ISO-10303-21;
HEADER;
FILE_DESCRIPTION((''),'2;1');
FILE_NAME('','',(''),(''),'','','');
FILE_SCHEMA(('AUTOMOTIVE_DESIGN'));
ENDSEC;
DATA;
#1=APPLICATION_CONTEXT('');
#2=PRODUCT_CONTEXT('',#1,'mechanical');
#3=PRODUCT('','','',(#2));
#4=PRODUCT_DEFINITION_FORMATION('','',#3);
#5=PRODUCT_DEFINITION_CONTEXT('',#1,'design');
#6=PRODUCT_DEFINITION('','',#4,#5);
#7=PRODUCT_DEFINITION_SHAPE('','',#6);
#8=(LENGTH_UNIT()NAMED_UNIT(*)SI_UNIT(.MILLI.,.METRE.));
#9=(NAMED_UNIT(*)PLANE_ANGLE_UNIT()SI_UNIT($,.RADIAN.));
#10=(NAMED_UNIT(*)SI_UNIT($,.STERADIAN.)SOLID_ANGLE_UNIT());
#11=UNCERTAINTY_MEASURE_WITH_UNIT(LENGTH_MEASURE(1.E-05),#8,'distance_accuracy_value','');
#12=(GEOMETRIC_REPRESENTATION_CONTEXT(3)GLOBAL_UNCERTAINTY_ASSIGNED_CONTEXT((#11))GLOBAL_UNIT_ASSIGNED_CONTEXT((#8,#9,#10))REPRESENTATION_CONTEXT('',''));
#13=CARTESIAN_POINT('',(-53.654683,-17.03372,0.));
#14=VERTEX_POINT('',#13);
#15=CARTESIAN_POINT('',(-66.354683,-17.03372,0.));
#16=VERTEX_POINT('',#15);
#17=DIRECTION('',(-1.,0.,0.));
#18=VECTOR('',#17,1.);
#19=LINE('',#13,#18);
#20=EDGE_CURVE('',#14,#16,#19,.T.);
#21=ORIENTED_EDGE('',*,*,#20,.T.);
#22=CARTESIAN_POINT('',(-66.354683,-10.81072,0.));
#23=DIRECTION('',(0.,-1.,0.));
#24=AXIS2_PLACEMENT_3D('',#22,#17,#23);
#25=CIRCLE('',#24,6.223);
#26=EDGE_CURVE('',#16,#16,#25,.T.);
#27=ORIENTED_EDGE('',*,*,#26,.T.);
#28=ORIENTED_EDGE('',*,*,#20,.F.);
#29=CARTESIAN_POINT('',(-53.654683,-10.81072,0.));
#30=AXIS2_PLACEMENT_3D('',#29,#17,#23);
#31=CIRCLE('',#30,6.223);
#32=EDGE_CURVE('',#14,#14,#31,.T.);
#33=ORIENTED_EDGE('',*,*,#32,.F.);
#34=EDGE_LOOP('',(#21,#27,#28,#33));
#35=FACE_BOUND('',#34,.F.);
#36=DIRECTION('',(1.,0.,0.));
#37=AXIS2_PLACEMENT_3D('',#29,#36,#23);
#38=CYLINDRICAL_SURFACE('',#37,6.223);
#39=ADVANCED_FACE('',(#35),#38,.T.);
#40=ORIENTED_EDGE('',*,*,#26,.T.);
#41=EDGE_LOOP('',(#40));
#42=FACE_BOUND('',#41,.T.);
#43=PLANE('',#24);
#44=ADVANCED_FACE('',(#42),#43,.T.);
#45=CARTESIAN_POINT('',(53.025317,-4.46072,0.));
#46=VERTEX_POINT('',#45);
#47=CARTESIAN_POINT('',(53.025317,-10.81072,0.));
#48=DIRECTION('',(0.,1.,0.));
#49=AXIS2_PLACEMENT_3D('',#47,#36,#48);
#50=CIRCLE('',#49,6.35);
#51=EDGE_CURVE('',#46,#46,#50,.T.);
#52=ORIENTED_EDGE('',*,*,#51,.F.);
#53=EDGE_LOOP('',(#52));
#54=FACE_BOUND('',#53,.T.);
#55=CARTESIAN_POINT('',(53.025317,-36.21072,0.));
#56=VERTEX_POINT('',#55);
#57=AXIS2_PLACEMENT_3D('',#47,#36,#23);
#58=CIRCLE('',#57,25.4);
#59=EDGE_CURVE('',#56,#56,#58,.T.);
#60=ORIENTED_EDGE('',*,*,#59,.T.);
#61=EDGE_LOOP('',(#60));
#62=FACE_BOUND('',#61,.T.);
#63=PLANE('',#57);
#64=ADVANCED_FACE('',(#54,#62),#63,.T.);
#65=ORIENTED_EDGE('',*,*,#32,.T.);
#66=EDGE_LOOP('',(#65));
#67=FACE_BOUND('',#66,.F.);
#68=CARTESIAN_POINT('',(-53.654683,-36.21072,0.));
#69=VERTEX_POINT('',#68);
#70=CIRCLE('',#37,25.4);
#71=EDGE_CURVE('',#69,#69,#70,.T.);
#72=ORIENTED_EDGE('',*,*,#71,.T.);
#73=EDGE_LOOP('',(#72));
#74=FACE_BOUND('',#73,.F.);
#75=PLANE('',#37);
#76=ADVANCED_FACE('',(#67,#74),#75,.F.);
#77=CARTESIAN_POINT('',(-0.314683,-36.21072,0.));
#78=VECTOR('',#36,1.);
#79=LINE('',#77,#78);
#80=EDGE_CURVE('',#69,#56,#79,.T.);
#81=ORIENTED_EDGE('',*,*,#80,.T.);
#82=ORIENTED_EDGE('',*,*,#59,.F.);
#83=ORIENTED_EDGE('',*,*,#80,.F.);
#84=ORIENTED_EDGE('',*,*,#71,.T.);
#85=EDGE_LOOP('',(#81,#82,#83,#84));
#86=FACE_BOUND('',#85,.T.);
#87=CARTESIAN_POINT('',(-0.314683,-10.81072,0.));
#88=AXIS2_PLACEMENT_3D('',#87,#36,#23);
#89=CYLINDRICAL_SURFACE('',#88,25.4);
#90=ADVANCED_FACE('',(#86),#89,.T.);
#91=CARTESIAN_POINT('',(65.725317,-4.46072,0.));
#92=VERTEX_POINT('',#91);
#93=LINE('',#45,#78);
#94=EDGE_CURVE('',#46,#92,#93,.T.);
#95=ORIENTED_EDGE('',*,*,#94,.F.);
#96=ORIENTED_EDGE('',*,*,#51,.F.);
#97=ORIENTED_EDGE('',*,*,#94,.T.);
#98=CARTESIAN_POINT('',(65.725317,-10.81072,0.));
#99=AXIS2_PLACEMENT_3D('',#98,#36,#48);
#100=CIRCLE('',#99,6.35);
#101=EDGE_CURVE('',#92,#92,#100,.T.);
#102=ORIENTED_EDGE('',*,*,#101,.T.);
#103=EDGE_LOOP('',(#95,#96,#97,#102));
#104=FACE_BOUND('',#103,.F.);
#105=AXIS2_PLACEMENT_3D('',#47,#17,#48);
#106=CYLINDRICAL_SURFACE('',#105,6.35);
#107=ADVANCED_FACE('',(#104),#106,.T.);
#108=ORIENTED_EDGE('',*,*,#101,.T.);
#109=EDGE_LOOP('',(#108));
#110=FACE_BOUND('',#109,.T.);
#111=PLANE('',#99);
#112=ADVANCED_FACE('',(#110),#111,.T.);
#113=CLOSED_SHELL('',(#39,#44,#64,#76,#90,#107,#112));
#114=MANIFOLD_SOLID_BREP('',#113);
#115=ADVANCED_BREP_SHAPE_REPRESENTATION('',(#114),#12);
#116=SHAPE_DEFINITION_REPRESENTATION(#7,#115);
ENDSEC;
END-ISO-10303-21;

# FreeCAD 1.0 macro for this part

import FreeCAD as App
import Part
import Sketcher
Q = App.Units.Quantity


def add_polygon(sketch, points):
    """Adds a closed chain of lines whose ends are joined by coincident constraints."""
    first, n = sketch.GeometryCount, len(points)
    for a, b in zip(points, points[1:] + points[:1]):
        sketch.addGeometry(Part.LineSegment(App.Vector(*a, 0), App.Vector(*b, 0)), False)
    for i in range(n):
        sketch.addConstraint(Sketcher.Constraint("Coincident", first + i, 2, first + (i + 1) % n, 1))

doc = App.newDocument("Part")
body = doc.addObject("PartDesign::Body", "Body")

sketch1 = doc.addObject("Sketcher::SketchObject", "Sketch")
body.addObject(sketch1)
sketch1.AttachmentSupport = (doc.XY_Plane, [""])
sketch1.MapMode = "FlatFace"
add_polygon(sketch1, [(-53.654683, -10.81072), (-53.654683, -36.21072), (53.025317, -36.21072), (53.025317, -10.81072)])
sketch1.addGeometry(Part.LineSegment(App.Vector(-53.654683, -10.81072, 0), App.Vector(53.025317, -10.81072, 0)), True)
sketch1.addConstraint([
    Sketcher.Constraint("Vertical", 0),
    Sketcher.Constraint("Horizontal", 1),
    Sketcher.Constraint("Vertical", 2),
    Sketcher.Constraint("Horizontal", 3),
    Sketcher.Constraint("Horizontal", 4),
    Sketcher.Constraint("Coincident", 4, 1, 3, 2),
    Sketcher.Constraint("Vertical", 1, 2, 4, 2),
    Sketcher.Constraint("DistanceY", 0, 2, 0, 1, Q("1 in")),
    Sketcher.Constraint("DistanceX", 1, 1, 1, 2, Q("4.2 in")),
    Sketcher.Constraint("DistanceY", 0, 2, -1, 1, Q("36.21072 mm")),
    Sketcher.Constraint("DistanceX", 0, 2, -1, 1, Q("53.654683 mm")),
])
revolution = doc.addObject("PartDesign::Revolution", "Revolution")
body.addObject(revolution)
revolution.Profile = sketch1
revolution.ReferenceAxis = (sketch1, ["Axis0"])
revolution.Angle = 360

sketch2 = doc.addObject("Sketcher::SketchObject", "Sketch001")
body.addObject(sketch2)
sketch2.AttachmentSupport = (doc.YZ_Plane, [""])
sketch2.MapMode = "FlatFace"
sketch2.AttachmentOffset = App.Placement(App.Vector(0, 0, -53.654683), App.Rotation())
sketch2.addGeometry(Part.Circle(App.Vector(-10.81072, 0, 0), App.Vector(0, 0, 1), 6.223), False)
sketch2.addConstraint([
    Sketcher.Constraint("PointOnObject", 0, 3, -1),
    Sketcher.Constraint("Diameter", 0, Q("0.49 in")),
    Sketcher.Constraint("DistanceX", 0, 3, -1, 1, Q("10.81072 mm")),
])
pad1 = doc.addObject("PartDesign::Pad", "Pad")
body.addObject(pad1)
pad1.Profile = sketch2
pad1.Length = Q("0.5 in")
pad1.Reversed = True

sketch3 = doc.addObject("Sketcher::SketchObject", "Sketch002")
body.addObject(sketch3)
sketch3.AttachmentSupport = (doc.YZ_Plane, [""])
sketch3.MapMode = "FlatFace"
sketch3.AttachmentOffset = App.Placement(App.Vector(0, 0, 53.025317), App.Rotation())
sketch3.addGeometry(Part.Circle(App.Vector(-10.81072, 0, 0), App.Vector(0, 0, 1), 6.35), False)
sketch3.addConstraint([
    Sketcher.Constraint("PointOnObject", 0, 3, -1),
    Sketcher.Constraint("Diameter", 0, Q("0.5 in")),
    Sketcher.Constraint("DistanceX", 0, 3, -1, 1, Q("10.81072 mm")),
])
pad2 = doc.addObject("PartDesign::Pad", "Pad001")
body.addObject(pad2)
pad2.Profile = sketch3
pad2.Length = Q("0.5 in")

doc.recompute()
